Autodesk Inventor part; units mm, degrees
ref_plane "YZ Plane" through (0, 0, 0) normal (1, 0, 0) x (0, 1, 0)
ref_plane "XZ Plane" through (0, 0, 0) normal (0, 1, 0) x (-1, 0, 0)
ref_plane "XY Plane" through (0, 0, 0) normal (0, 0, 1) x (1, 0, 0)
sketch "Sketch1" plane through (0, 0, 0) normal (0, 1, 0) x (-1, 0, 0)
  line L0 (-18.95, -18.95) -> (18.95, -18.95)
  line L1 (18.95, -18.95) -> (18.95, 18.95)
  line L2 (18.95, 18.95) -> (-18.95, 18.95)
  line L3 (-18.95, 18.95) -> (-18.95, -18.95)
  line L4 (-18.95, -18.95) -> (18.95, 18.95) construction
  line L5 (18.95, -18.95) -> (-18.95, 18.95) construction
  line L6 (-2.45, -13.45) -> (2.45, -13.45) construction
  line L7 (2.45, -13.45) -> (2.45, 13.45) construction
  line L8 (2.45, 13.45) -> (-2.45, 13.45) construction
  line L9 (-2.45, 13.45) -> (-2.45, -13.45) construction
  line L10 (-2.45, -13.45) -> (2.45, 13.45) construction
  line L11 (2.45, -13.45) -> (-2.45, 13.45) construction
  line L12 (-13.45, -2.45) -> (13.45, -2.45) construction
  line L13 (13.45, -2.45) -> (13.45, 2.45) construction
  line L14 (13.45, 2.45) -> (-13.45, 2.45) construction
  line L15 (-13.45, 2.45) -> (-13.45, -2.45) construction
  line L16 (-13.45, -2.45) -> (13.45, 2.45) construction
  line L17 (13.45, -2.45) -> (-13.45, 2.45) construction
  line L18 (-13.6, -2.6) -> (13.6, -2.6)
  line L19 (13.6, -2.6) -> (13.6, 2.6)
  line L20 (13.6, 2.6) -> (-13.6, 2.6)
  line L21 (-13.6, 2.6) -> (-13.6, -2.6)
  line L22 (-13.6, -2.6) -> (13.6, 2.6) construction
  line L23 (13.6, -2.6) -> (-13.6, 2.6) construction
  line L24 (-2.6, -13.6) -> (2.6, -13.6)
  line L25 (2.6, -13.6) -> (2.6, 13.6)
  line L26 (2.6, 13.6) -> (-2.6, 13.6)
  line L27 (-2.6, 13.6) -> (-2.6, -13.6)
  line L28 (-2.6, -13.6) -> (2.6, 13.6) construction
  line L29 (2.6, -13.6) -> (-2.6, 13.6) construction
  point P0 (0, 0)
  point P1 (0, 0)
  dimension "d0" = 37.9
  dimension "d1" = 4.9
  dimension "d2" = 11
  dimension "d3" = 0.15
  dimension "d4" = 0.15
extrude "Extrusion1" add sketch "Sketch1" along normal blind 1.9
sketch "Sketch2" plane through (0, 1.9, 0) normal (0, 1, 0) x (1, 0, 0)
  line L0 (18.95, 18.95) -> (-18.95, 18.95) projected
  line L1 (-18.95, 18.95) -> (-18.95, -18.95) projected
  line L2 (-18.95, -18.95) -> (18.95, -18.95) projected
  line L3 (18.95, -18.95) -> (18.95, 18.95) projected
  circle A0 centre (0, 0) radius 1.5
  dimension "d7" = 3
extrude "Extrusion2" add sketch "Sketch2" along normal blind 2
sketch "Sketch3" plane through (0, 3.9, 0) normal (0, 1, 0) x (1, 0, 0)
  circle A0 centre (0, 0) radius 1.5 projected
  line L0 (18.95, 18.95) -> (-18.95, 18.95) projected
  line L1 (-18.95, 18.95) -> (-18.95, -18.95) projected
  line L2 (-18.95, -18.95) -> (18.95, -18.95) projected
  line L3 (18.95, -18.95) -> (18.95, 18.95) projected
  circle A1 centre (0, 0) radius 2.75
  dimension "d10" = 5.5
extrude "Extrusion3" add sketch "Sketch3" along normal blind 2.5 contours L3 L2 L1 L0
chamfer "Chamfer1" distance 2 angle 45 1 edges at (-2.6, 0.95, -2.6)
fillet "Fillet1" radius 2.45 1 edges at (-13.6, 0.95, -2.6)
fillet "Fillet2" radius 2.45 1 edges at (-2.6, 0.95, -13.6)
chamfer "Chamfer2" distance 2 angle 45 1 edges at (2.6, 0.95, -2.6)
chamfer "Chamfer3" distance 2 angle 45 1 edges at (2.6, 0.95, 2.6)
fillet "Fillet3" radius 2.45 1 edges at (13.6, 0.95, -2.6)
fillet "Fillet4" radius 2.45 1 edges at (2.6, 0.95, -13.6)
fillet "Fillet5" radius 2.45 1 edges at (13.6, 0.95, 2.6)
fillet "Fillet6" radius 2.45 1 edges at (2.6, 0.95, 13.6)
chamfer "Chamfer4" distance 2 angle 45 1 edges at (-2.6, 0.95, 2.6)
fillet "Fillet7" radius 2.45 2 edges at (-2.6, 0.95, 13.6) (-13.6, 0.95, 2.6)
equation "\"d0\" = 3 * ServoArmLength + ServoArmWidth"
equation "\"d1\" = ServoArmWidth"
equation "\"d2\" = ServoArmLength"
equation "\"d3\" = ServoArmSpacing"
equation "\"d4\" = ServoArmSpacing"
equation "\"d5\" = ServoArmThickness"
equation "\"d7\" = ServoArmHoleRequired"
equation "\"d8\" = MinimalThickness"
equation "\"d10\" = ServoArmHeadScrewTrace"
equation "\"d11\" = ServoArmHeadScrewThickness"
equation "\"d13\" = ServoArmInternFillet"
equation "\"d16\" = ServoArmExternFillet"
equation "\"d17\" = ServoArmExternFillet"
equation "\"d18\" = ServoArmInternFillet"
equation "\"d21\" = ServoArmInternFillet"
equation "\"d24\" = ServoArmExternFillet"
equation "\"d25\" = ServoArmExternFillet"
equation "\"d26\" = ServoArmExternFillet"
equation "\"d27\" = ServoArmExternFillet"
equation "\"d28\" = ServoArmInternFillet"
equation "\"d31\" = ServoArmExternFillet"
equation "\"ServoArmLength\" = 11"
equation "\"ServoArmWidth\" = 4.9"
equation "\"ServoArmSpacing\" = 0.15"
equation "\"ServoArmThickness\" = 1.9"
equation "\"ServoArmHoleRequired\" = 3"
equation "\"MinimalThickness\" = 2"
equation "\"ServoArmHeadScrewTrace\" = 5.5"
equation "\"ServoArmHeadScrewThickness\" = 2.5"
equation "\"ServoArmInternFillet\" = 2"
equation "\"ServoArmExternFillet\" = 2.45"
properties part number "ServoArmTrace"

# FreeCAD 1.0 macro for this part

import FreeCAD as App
import Part
import Sketcher


def edges_at(feature, points):
    """Names of the edges that pass closest to the given points."""
    edges = feature.Shape.Edges
    near = lambda p: min(range(len(edges)), key=lambda i: edges[i].distToShape(Part.Vertex(*p))[0])
    return sorted({f"Edge{near(p) + 1}" for p in points})


def add_polygon(sketch, points):
    """Adds a closed chain of lines whose ends are joined by coincident constraints."""
    first, n = sketch.GeometryCount, len(points)
    for a, b in zip(points, points[1:] + points[:1]):
        sketch.addGeometry(Part.LineSegment(App.Vector(*a, 0), App.Vector(*b, 0)), False)
    for i in range(n):
        sketch.addConstraint(Sketcher.Constraint("Coincident", first + i, 2, first + (i + 1) % n, 1))

doc = App.newDocument("Part")
params = doc.addObject("Spreadsheet::Sheet", "Params")
for row, (alias, value) in enumerate([
    ("sketch1_width", "11 mm"),
    ("sketch1_width2", "37.9 mm"),
    ("sketch1_width3", "5.2 mm"),
    ("pad1_length", "1.9 mm"),
    ("sketch2_diameter", "3 mm"),
    ("sketch2_width", "37.9 mm"),
    ("pad2_length", "2 mm"),
    ("sketch3_diameter", "5.5 mm"),
    ("sketch3_width", "37.9 mm"),
    ("pad3_length", "2.5 mm"),
    ("chamfer_size", "2 mm"),
    ("fillet_radius", "2.45 mm"),
    ("fillet2_radius", "2.45 mm"),
    ("chamfer2_size", "2 mm"),
    ("chamfer3_size", "2 mm"),
    ("fillet3_radius", "2.45 mm"),
    ("fillet4_radius", "2.45 mm"),
    ("fillet5_radius", "2.45 mm"),
    ("fillet6_radius", "2.45 mm"),
    ("chamfer4_size", "2 mm"),
    ("fillet7_radius", "2.45 mm"),
], start=1):
    params.set(f"A{row}", alias)
    params.set(f"B{row}", "=" + value)
    params.setAlias(f"B{row}", alias)

body = doc.addObject("PartDesign::Body", "Body")

# Sketch on XZ plane
sketch1 = body.newObject("Sketcher::SketchObject", "Sketch")
sketch1.AttachmentSupport = (doc.getObject("XZ_Plane"), [""])
sketch1.MapMode = "FlatFace"
add_polygon(sketch1, [(18.95, 18.95), (18.95, -18.95), (-18.95, -18.95), (-18.95, 18.95)])  # lines 0-3
add_polygon(sketch1, [(2.6, -2.6), (13.6, -2.6), (13.6, 2.6), (2.6, 2.6), (2.6, 13.6), (-2.6, 13.6), (-2.6, 2.6), (-13.6, 2.6), (-13.6, -2.6), (-2.6, -2.6), (-2.6, -13.6), (2.6, -13.6)])  # lines 4-15
sketch1.addConstraint([
    Sketcher.Constraint("Vertical", 0),
    Sketcher.Constraint("Horizontal", 1),
    Sketcher.Constraint("Vertical", 2),
    Sketcher.Constraint("Horizontal", 3),
    Sketcher.Constraint("Horizontal", 4),
    Sketcher.Constraint("Vertical", 5),
    Sketcher.Constraint("Horizontal", 6),
    Sketcher.Constraint("Vertical", 7),
    Sketcher.Constraint("Horizontal", 8),
    Sketcher.Constraint("Vertical", 9),
    Sketcher.Constraint("Horizontal", 10),
    Sketcher.Constraint("Vertical", 11),
    Sketcher.Constraint("Horizontal", 12),
    Sketcher.Constraint("Vertical", 13),
    Sketcher.Constraint("Horizontal", 14),
    Sketcher.Constraint("Vertical", 15),
    Sketcher.Constraint("Symmetric", 0, 2, 2, 2, -1, 1),
    Sketcher.Constraint("Symmetric", 4, 2, 10, 2, -1, 1),
    Sketcher.Constraint("Symmetric", 6, 2, 12, 2, -1, 1),
    Sketcher.Constraint("Symmetric", 8, 2, 14, 2, -1, 1),
    Sketcher.Constraint("Symmetric", 6, 2, 9, 2, -2),
    Sketcher.Constraint("Equal", 3, 0),
    Sketcher.Constraint("Equal", 14, 5),
    Sketcher.Constraint("Equal", 12, 7),
    Sketcher.Constraint("DistanceX", 4, 1, 4, 2, 11.0),
    Sketcher.Constraint("DistanceX", 1, 2, 1, 1, 37.9),
    Sketcher.Constraint("DistanceX", 8, 2, 8, 1, 5.2),
])
sketch1.setExpression("Constraints[40]", "Params.sketch1_width")
sketch1.setExpression("Constraints[41]", "Params.sketch1_width2")
sketch1.setExpression("Constraints[42]", "Params.sketch1_width3")
pad1 = body.newObject("PartDesign::Pad", "Pad")
pad1.Profile = sketch1
pad1.setExpression("Length", "Params.pad1_length")
pad1.Reversed = True

# Sketch on XZ plane
sketch2 = body.newObject("Sketcher::SketchObject", "Sketch001")
sketch2.AttachmentSupport = (doc.getObject("XZ_Plane"), [""])
sketch2.MapMode = "FlatFace"
sketch2.AttachmentOffset = App.Placement(App.Vector(0, 0, -1.9), App.Rotation())
add_polygon(sketch2, [(18.95, 18.95), (18.95, -18.95), (-18.95, -18.95), (-18.95, 18.95)])  # lines 0-3
sketch2.addGeometry(Part.Circle(App.Vector(0, 0, 0), App.Vector(0, 0, 1), 1.5), False)  # 4
sketch2.addConstraint([
    Sketcher.Constraint("Vertical", 0),
    Sketcher.Constraint("Horizontal", 1),
    Sketcher.Constraint("Vertical", 2),
    Sketcher.Constraint("Horizontal", 3),
    Sketcher.Constraint("Coincident", 4, 3, -1, 1),
    Sketcher.Constraint("Symmetric", 0, 2, 2, 2, -1, 1),
    Sketcher.Constraint("Equal", 3, 0),
    Sketcher.Constraint("Diameter", 4, 3.0),
    Sketcher.Constraint("DistanceX", 1, 2, 1, 1, 37.9),
])
sketch2.setExpression("Constraints[11]", "Params.sketch2_diameter")
sketch2.setExpression("Constraints[12]", "Params.sketch2_width")
pad2 = body.newObject("PartDesign::Pad", "Pad001")
pad2.Profile = sketch2
pad2.setExpression("Length", "Params.pad2_length")
pad2.Reversed = True

# Sketch on XZ plane
sketch3 = body.newObject("Sketcher::SketchObject", "Sketch002")
sketch3.AttachmentSupport = (doc.getObject("XZ_Plane"), [""])
sketch3.MapMode = "FlatFace"
sketch3.AttachmentOffset = App.Placement(App.Vector(0, 0, -3.9), App.Rotation())
add_polygon(sketch3, [(18.95, 18.95), (18.95, -18.95), (-18.95, -18.95), (-18.95, 18.95)])  # lines 0-3
sketch3.addGeometry(Part.Circle(App.Vector(0, 0, 0), App.Vector(0, 0, 1), 2.75), False)  # 4
sketch3.addConstraint([
    Sketcher.Constraint("Vertical", 0),
    Sketcher.Constraint("Horizontal", 1),
    Sketcher.Constraint("Vertical", 2),
    Sketcher.Constraint("Horizontal", 3),
    Sketcher.Constraint("Coincident", 4, 3, -1, 1),
    Sketcher.Constraint("Symmetric", 0, 2, 2, 2, -1, 1),
    Sketcher.Constraint("Equal", 3, 0),
    Sketcher.Constraint("Diameter", 4, 5.5),
    Sketcher.Constraint("DistanceX", 1, 2, 1, 1, 37.9),
])
sketch3.setExpression("Constraints[11]", "Params.sketch3_diameter")
sketch3.setExpression("Constraints[12]", "Params.sketch3_width")
pad3 = body.newObject("PartDesign::Pad", "Pad002")
pad3.Profile = sketch3
pad3.setExpression("Length", "Params.pad3_length")
pad3.Reversed = True
doc.recompute()

chamfer = body.newObject("PartDesign::Chamfer", "Chamfer")
chamfer.Base = (pad3, edges_at(pad3, [(-2.6, 0.95, -2.6)]))
chamfer.setExpression("Size", "Params.chamfer_size")
doc.recompute()

fillet = body.newObject("PartDesign::Fillet", "Fillet")
fillet.Base = (chamfer, edges_at(chamfer, [(-13.6, 0.95, -2.6)]))
fillet.setExpression("Radius", "Params.fillet_radius")
doc.recompute()

fillet2 = body.newObject("PartDesign::Fillet", "Fillet001")
fillet2.Base = (fillet, edges_at(fillet, [(-2.6, 0.95, -13.6)]))
fillet2.setExpression("Radius", "Params.fillet2_radius")
doc.recompute()

chamfer2 = body.newObject("PartDesign::Chamfer", "Chamfer001")
chamfer2.Base = (fillet2, edges_at(fillet2, [(2.6, 0.95, -2.6)]))
chamfer2.setExpression("Size", "Params.chamfer2_size")
doc.recompute()

chamfer3 = body.newObject("PartDesign::Chamfer", "Chamfer002")
chamfer3.Base = (chamfer2, edges_at(chamfer2, [(2.6, 0.95, 2.6)]))
chamfer3.setExpression("Size", "Params.chamfer3_size")
doc.recompute()

fillet3 = body.newObject("PartDesign::Fillet", "Fillet002")
fillet3.Base = (chamfer3, edges_at(chamfer3, [(13.6, 0.95, -2.6)]))
fillet3.setExpression("Radius", "Params.fillet3_radius")
doc.recompute()

fillet4 = body.newObject("PartDesign::Fillet", "Fillet003")
fillet4.Base = (fillet3, edges_at(fillet3, [(2.6, 0.95, -13.6)]))
fillet4.setExpression("Radius", "Params.fillet4_radius")
doc.recompute()

fillet5 = body.newObject("PartDesign::Fillet", "Fillet004")
fillet5.Base = (fillet4, edges_at(fillet4, [(13.6, 0.95, 2.6)]))
fillet5.setExpression("Radius", "Params.fillet5_radius")
doc.recompute()

fillet6 = body.newObject("PartDesign::Fillet", "Fillet005")
fillet6.Base = (fillet5, edges_at(fillet5, [(2.6, 0.95, 13.6)]))
fillet6.setExpression("Radius", "Params.fillet6_radius")
doc.recompute()

chamfer4 = body.newObject("PartDesign::Chamfer", "Chamfer003")
chamfer4.Base = (fillet6, edges_at(fillet6, [(-2.6, 0.95, 2.6)]))
chamfer4.setExpression("Size", "Params.chamfer4_size")
doc.recompute()

fillet7 = body.newObject("PartDesign::Fillet", "Fillet006")
fillet7.Base = (chamfer4, edges_at(chamfer4, [(-2.6, 0.95, 13.6), (-13.6, 0.95, 2.6)]))
fillet7.setExpression("Radius", "Params.fillet7_radius")

doc.recompute()
